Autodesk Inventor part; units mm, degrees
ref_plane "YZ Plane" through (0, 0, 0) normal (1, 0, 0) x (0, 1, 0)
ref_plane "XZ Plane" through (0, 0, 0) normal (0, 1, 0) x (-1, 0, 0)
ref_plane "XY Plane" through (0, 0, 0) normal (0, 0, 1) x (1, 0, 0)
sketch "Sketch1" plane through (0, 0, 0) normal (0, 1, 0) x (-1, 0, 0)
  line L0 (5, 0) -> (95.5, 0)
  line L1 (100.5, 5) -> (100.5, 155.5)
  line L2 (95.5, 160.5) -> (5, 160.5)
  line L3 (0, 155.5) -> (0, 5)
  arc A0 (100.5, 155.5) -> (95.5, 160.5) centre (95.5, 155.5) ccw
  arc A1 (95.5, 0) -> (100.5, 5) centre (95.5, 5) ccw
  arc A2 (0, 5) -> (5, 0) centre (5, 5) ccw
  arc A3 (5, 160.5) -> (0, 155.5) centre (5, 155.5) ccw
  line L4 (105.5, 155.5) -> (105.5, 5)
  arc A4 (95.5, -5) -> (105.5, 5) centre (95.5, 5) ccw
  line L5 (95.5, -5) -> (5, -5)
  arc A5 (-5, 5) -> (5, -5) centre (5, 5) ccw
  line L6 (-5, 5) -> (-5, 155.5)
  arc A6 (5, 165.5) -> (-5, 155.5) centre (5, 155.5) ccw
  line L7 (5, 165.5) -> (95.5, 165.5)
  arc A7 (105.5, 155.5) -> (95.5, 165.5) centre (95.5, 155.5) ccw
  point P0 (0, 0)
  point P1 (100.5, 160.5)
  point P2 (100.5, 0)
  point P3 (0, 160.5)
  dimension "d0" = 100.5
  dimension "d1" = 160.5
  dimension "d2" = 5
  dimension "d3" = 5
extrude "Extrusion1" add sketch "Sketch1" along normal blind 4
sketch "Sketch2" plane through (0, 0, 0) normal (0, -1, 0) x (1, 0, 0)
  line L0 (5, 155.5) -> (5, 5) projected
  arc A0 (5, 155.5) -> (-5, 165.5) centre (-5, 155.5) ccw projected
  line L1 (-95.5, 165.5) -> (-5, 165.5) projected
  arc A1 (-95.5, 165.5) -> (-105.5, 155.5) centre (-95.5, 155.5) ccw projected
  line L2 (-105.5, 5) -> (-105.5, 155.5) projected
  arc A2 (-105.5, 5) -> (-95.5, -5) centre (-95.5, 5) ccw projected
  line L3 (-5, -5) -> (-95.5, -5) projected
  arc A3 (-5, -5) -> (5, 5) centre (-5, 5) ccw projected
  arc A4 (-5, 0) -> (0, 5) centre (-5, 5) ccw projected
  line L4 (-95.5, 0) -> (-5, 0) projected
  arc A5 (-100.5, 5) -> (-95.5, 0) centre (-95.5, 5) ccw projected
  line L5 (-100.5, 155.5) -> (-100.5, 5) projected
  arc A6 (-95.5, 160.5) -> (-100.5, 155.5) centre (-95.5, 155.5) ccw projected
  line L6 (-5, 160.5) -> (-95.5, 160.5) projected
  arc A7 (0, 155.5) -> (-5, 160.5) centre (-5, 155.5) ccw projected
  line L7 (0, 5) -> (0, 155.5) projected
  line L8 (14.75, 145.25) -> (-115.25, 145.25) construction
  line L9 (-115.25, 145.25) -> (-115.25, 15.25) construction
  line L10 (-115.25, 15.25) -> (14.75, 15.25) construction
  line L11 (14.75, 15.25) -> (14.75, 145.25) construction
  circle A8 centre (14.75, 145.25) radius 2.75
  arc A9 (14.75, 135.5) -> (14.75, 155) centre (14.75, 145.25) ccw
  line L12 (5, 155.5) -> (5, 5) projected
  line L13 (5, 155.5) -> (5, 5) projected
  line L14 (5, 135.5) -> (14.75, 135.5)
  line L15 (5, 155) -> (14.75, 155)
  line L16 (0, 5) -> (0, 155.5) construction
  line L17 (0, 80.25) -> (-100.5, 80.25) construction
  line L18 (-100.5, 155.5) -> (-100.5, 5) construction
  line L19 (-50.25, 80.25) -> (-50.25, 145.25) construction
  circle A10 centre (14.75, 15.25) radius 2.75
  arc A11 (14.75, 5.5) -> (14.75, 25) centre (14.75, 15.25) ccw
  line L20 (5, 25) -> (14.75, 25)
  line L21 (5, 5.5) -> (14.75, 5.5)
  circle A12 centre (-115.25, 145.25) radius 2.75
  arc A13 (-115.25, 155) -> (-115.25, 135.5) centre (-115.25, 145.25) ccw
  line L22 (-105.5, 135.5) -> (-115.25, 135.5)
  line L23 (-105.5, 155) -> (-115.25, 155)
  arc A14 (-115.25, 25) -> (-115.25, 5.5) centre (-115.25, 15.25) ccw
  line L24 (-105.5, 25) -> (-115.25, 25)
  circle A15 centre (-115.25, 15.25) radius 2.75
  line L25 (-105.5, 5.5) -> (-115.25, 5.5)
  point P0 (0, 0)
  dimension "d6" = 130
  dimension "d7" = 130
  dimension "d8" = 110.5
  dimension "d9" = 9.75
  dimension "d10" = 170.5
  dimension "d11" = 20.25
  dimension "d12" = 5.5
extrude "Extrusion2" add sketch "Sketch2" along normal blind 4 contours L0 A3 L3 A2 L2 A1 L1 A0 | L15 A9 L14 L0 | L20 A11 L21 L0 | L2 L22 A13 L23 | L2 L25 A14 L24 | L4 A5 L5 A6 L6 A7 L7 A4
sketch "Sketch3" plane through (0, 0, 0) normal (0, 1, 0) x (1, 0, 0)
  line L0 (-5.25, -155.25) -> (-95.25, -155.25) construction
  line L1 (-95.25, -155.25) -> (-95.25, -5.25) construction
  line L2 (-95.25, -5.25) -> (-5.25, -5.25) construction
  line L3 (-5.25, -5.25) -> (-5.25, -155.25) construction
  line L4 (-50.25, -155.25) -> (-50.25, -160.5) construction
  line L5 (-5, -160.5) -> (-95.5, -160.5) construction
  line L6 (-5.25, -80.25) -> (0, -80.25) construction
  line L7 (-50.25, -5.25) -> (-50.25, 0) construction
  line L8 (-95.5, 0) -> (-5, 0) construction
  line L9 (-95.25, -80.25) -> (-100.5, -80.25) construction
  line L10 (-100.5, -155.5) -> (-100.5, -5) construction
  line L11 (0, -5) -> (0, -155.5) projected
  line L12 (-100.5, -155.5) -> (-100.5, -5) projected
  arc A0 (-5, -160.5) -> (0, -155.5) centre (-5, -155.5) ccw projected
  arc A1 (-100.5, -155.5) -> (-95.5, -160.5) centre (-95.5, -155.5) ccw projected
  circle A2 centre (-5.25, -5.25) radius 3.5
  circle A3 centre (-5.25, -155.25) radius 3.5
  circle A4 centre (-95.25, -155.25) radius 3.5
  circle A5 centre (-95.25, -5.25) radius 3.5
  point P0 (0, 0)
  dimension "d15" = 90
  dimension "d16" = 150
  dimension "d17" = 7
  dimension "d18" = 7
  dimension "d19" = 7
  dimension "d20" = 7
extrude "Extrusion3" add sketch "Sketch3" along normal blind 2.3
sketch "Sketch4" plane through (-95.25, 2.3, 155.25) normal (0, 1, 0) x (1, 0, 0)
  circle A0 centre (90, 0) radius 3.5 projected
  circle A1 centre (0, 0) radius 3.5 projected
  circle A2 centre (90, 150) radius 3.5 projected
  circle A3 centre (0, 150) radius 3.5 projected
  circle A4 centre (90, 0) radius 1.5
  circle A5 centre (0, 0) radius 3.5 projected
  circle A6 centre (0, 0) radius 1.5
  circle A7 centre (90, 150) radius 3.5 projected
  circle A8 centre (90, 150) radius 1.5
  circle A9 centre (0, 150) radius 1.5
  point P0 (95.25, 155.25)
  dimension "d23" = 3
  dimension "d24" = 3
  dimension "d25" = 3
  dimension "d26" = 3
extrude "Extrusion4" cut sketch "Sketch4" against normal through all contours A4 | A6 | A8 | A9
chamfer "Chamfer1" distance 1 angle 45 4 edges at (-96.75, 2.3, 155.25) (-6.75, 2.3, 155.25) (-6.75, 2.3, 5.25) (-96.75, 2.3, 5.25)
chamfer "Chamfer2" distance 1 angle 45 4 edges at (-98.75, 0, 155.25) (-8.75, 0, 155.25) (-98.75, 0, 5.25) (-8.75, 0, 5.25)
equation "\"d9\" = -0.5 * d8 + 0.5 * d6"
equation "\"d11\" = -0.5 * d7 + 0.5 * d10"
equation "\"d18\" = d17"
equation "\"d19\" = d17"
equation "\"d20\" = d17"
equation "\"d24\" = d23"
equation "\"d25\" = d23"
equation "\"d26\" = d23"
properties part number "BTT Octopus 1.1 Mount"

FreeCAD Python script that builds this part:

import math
import FreeCAD as App
import Part
import Sketcher
Q = App.Units.Quantity


def edges_at(feature, points):
    """Names of the edges that pass closest to the given points."""
    edges = feature.Shape.Edges
    near = lambda p: min(range(len(edges)), key=lambda i: edges[i].distToShape(Part.Vertex(*p))[0])
    return sorted({f"Edge{near(p) + 1}" for p in points})

doc = App.newDocument("Part")
params = doc.addObject("Spreadsheet::Sheet", "Params")
for row, (alias, value) in enumerate([
    ("sketch1_radius", "5 mm"),
    ("pad1_length", "4 mm"),
    ("sketch2_diameter", "5.5 mm"),
    ("sketch2_radius", "9.75 mm"),
    ("sketch2_height", "110.5 mm"),
    ("sketch2_radius2", "10 mm"),
    ("sketch2_width", "9.75 mm"),
    ("pad2_length", "4 mm"),
    ("sketch3_diameter", "7 mm"),
    ("pad3_length", "2.3 mm"),
    ("sketch4_diameter", "3 mm"),
    ("chamfer_size", "1 mm"),
    ("chamfer2_size", "1 mm"),
], start=1):
    params.set(f"A{row}", alias)
    params.set(f"B{row}", "=" + value)
    params.setAlias(f"B{row}", alias)

body = doc.addObject("PartDesign::Body", "Body")

# Sketch on XZ plane
sketch1 = body.newObject("Sketcher::SketchObject", "Sketch")
sketch1.AttachmentSupport = (doc.getObject("XZ_Plane"), [""])
sketch1.MapMode = "FlatFace"
sketch1.addGeometry(Part.LineSegment(App.Vector(-106, 5, 0), App.Vector(-106, 156, 0)), False)
sketch1.addGeometry(Part.ArcOfCircle(Part.Circle(App.Vector(-96, 156, 0), App.Vector(0, 0, 1), 10), math.radians(90), math.radians(180)), False)
sketch1.addGeometry(Part.LineSegment(App.Vector(-96, 166, 0), App.Vector(-5, 166, 0)), False)
sketch1.addGeometry(Part.ArcOfCircle(Part.Circle(App.Vector(-5, 156, 0), App.Vector(0, 0, 1), 10), math.radians(0), math.radians(90)), False)
sketch1.addGeometry(Part.LineSegment(App.Vector(5, 156, 0), App.Vector(5, 5, 0)), False)
sketch1.addGeometry(Part.ArcOfCircle(Part.Circle(App.Vector(-5, 5, 0), App.Vector(0, 0, 1), 10), math.radians(-90), math.radians(0)), False)
sketch1.addGeometry(Part.LineSegment(App.Vector(-5, -5, 0), App.Vector(-96, -5, 0)), False)
sketch1.addGeometry(Part.ArcOfCircle(Part.Circle(App.Vector(-96, 5, 0), App.Vector(0, 0, 1), 10), math.radians(180), math.radians(270)), False)
sketch1.addGeometry(Part.LineSegment(App.Vector(-96, 0, 0), App.Vector(-5, 0, 0)), False)
sketch1.addGeometry(Part.ArcOfCircle(Part.Circle(App.Vector(-5, 5, 0), App.Vector(0, 0, 1), 5), math.radians(-90), math.radians(0)), False)
sketch1.addGeometry(Part.LineSegment(App.Vector(0, 5, 0), App.Vector(0, 156, 0)), False)
sketch1.addGeometry(Part.ArcOfCircle(Part.Circle(App.Vector(-5, 156, 0), App.Vector(0, 0, 1), 5), math.radians(0), math.radians(90)), False)
sketch1.addGeometry(Part.LineSegment(App.Vector(-5, 160, 0), App.Vector(-96, 160, 0)), False)
sketch1.addGeometry(Part.ArcOfCircle(Part.Circle(App.Vector(-96, 156, 0), App.Vector(0, 0, 1), 5), math.radians(90), math.radians(180)), False)
sketch1.addGeometry(Part.LineSegment(App.Vector(-100, 156, 0), App.Vector(-100, 5, 0)), False)
sketch1.addGeometry(Part.ArcOfCircle(Part.Circle(App.Vector(-96, 5, 0), App.Vector(0, 0, 1), 5), math.radians(180), math.radians(270)), False)
sketch1.addConstraint(Sketcher.Constraint("Tangent", 0, 2, 1, 2))
sketch1.addConstraint(Sketcher.Constraint("Tangent", 1, 1, 2, 1))
sketch1.addConstraint(Sketcher.Constraint("Tangent", 2, 2, 3, 2))
sketch1.addConstraint(Sketcher.Constraint("Tangent", 3, 1, 4, 1))
sketch1.addConstraint(Sketcher.Constraint("Tangent", 4, 2, 5, 2))
sketch1.addConstraint(Sketcher.Constraint("Tangent", 5, 1, 6, 1))
sketch1.addConstraint(Sketcher.Constraint("Tangent", 6, 2, 7, 2))
sketch1.addConstraint(Sketcher.Constraint("Tangent", 7, 1, 0, 1))
sketch1.addConstraint(Sketcher.Constraint("Tangent", 8, 2, 9, 1))
sketch1.addConstraint(Sketcher.Constraint("Tangent", 9, 2, 10, 1))
sketch1.addConstraint(Sketcher.Constraint("Tangent", 10, 2, 11, 1))
sketch1.addConstraint(Sketcher.Constraint("Tangent", 11, 2, 12, 1))
sketch1.addConstraint(Sketcher.Constraint("Tangent", 12, 2, 13, 1))
sketch1.addConstraint(Sketcher.Constraint("Tangent", 13, 2, 14, 1))
sketch1.addConstraint(Sketcher.Constraint("Tangent", 14, 2, 15, 1))
sketch1.addConstraint(Sketcher.Constraint("Tangent", 15, 2, 8, 1))
sketch1.addConstraint(Sketcher.Constraint("Vertical", 0))
sketch1.addConstraint(Sketcher.Constraint("Horizontal", 2))
sketch1.addConstraint(Sketcher.Constraint("Vertical", 4))
sketch1.addConstraint(Sketcher.Constraint("Horizontal", 6))
sketch1.addConstraint(Sketcher.Constraint("Horizontal", 8))
sketch1.addConstraint(Sketcher.Constraint("Vertical", 10))
sketch1.addConstraint(Sketcher.Constraint("Horizontal", 12))
sketch1.addConstraint(Sketcher.Constraint("Vertical", 14))
sketch1.addConstraint(Sketcher.Constraint("Coincident", 9, 3, 5, 3))
sketch1.addConstraint(Sketcher.Constraint("Coincident", 11, 3, 3, 3))
sketch1.addConstraint(Sketcher.Constraint("Coincident", 13, 3, 1, 3))
sketch1.addConstraint(Sketcher.Constraint("Equal", 1, 3))
sketch1.addConstraint(Sketcher.Constraint("Equal", 3, 5))
sketch1.addConstraint(Sketcher.Constraint("Equal", 5, 7))
sketch1.addConstraint(Sketcher.Constraint("Equal", 13, 15))
sketch1.addConstraint(Sketcher.Constraint("Symmetric", 4, 2, 5, 1, -1, 1))
sketch1.addConstraint(Sketcher.Constraint("PointOnObject", 8, 2, -1))
sketch1.addConstraint(Sketcher.Constraint("Radius", 9, Q("5 mm")))
sketch1.addConstraint(Sketcher.Constraint("DistanceY", -1, 1, 11, 2, Q("160.5 mm")))
sketch1.addConstraint(Sketcher.Constraint("DistanceX", 13, 2, -1, 1, Q("100.5 mm")))
sketch1.setExpression("Constraints[33]", "Params.sketch1_radius")
pad1 = body.newObject("PartDesign::Pad", "Pad")
pad1.Profile = sketch1
pad1.setExpression("Length", "Params.pad1_length")
pad1.Reversed = True

# Sketch on XZ plane
sketch2 = body.newObject("Sketcher::SketchObject", "Sketch001")
sketch2.AttachmentSupport = (doc.getObject("XZ_Plane"), [""])
sketch2.MapMode = "FlatFace"
sketch2.addGeometry(Part.LineSegment(App.Vector(5, 155, 0), App.Vector(5, 155.5, 0)), False)
sketch2.addGeometry(Part.ArcOfCircle(Part.Circle(App.Vector(-5, 155.5, 0), App.Vector(0, 0, 1), 10), math.radians(0), math.radians(90)), False)
sketch2.addGeometry(Part.LineSegment(App.Vector(-5, 165.5, 0), App.Vector(-95.5, 165.5, 0)), False)
sketch2.addGeometry(Part.ArcOfCircle(Part.Circle(App.Vector(-95.5, 155.5, 0), App.Vector(0, 0, 1), 10), math.radians(90), math.radians(180)), False)
sketch2.addGeometry(Part.LineSegment(App.Vector(-105.5, 155.5, 0), App.Vector(-105.5, 155, 0)), False)
sketch2.addGeometry(Part.LineSegment(App.Vector(-105.5, 155, 0), App.Vector(-115.2, 155, 0)), False)
sketch2.addGeometry(Part.ArcOfCircle(Part.Circle(App.Vector(-115.2, 145.2, 0), App.Vector(0, 0, 1), 9.8), math.radians(90), math.radians(270)), False)
sketch2.addGeometry(Part.LineSegment(App.Vector(-115.2, 135.5, 0), App.Vector(-105.5, 135.5, 0)), False)
sketch2.addGeometry(Part.LineSegment(App.Vector(-105.5, 135.5, 0), App.Vector(-105.5, 25, 0)), False)
sketch2.addGeometry(Part.LineSegment(App.Vector(-105.5, 25, 0), App.Vector(-115.2, 25, 0)), False)
sketch2.addGeometry(Part.ArcOfCircle(Part.Circle(App.Vector(-115.2, 15.2, 0), App.Vector(0, 0, 1), 9.8), math.radians(90), math.radians(270)), False)
sketch2.addGeometry(Part.LineSegment(App.Vector(-115.2, 5.5, 0), App.Vector(-105.5, 5.5, 0)), False)
sketch2.addGeometry(Part.LineSegment(App.Vector(-105.5, 5.5, 0), App.Vector(-105.5, 5, 0)), False)
sketch2.addGeometry(Part.ArcOfCircle(Part.Circle(App.Vector(-95.5, 5, 0), App.Vector(0, 0, 1), 10), math.radians(180), math.radians(270)), False)
sketch2.addGeometry(Part.LineSegment(App.Vector(-95.5, -5, 0), App.Vector(-5, -5, 0)), False)
sketch2.addGeometry(Part.ArcOfCircle(Part.Circle(App.Vector(-5, 5, 0), App.Vector(0, 0, 1), 10), math.radians(-90), math.radians(0)), False)
sketch2.addGeometry(Part.LineSegment(App.Vector(5, 5, 0), App.Vector(5, 5.5, 0)), False)
sketch2.addGeometry(Part.LineSegment(App.Vector(5, 5.5, 0), App.Vector(14.8, 5.5, 0)), False)
sketch2.addGeometry(Part.ArcOfCircle(Part.Circle(App.Vector(14.8, 15.2, 0), App.Vector(0, 0, 1), 9.8), math.radians(-90), math.radians(90)), False)
sketch2.addGeometry(Part.LineSegment(App.Vector(14.8, 25, 0), App.Vector(5, 25, 0)), False)
sketch2.addGeometry(Part.LineSegment(App.Vector(5, 25, 0), App.Vector(5, 135.5, 0)), False)
sketch2.addGeometry(Part.LineSegment(App.Vector(5, 135.5, 0), App.Vector(14.8, 135.5, 0)), False)
sketch2.addGeometry(Part.ArcOfCircle(Part.Circle(App.Vector(14.8, 145.2, 0), App.Vector(0, 0, 1), 9.8), math.radians(-90), math.radians(90)), False)
sketch2.addGeometry(Part.LineSegment(App.Vector(14.8, 155, 0), App.Vector(5, 155, 0)), False)
sketch2.addGeometry(Part.Circle(App.Vector(14.8, 145.2, 0), App.Vector(0, 0, 1), 2.8), False)
sketch2.addGeometry(Part.Circle(App.Vector(14.8, 15.2, 0), App.Vector(0, 0, 1), 2.8), False)
sketch2.addGeometry(Part.Circle(App.Vector(-115.2, 15.2, 0), App.Vector(0, 0, 1), 2.8), False)
sketch2.addGeometry(Part.Circle(App.Vector(-115.2, 145.2, 0), App.Vector(0, 0, 1), 2.8), False)
sketch2.addConstraint(Sketcher.Constraint("Tangent", 0, 2, 1, 1))
sketch2.addConstraint(Sketcher.Constraint("Tangent", 1, 2, 2, 1))
sketch2.addConstraint(Sketcher.Constraint("Tangent", 2, 2, 3, 1))
sketch2.addConstraint(Sketcher.Constraint("Tangent", 3, 2, 4, 1))
sketch2.addConstraint(Sketcher.Constraint("Coincident", 4, 2, 5, 1))
sketch2.addConstraint(Sketcher.Constraint("Tangent", 5, 2, 6, 1))
sketch2.addConstraint(Sketcher.Constraint("Tangent", 6, 2, 7, 1))
sketch2.addConstraint(Sketcher.Constraint("Coincident", 7, 2, 8, 1))
sketch2.addConstraint(Sketcher.Constraint("Coincident", 8, 2, 9, 1))
sketch2.addConstraint(Sketcher.Constraint("Tangent", 9, 2, 10, 1))
sketch2.addConstraint(Sketcher.Constraint("Tangent", 10, 2, 11, 1))
sketch2.addConstraint(Sketcher.Constraint("Coincident", 11, 2, 12, 1))
sketch2.addConstraint(Sketcher.Constraint("Tangent", 12, 2, 13, 1))
sketch2.addConstraint(Sketcher.Constraint("Tangent", 13, 2, 14, 1))
sketch2.addConstraint(Sketcher.Constraint("Tangent", 14, 2, 15, 1))
sketch2.addConstraint(Sketcher.Constraint("Tangent", 15, 2, 16, 1))
sketch2.addConstraint(Sketcher.Constraint("Coincident", 16, 2, 17, 1))
sketch2.addConstraint(Sketcher.Constraint("Tangent", 17, 2, 18, 1))
sketch2.addConstraint(Sketcher.Constraint("Tangent", 18, 2, 19, 1))
sketch2.addConstraint(Sketcher.Constraint("Coincident", 19, 2, 20, 1))
sketch2.addConstraint(Sketcher.Constraint("Coincident", 20, 2, 21, 1))
sketch2.addConstraint(Sketcher.Constraint("Tangent", 21, 2, 22, 1))
sketch2.addConstraint(Sketcher.Constraint("Tangent", 22, 2, 23, 1))
sketch2.addConstraint(Sketcher.Constraint("Coincident", 23, 2, 0, 1))
sketch2.addConstraint(Sketcher.Constraint("Vertical", 0))
sketch2.addConstraint(Sketcher.Constraint("Horizontal", 2))
sketch2.addConstraint(Sketcher.Constraint("Vertical", 4))
sketch2.addConstraint(Sketcher.Constraint("Horizontal", 5))
sketch2.addConstraint(Sketcher.Constraint("Horizontal", 7))
sketch2.addConstraint(Sketcher.Constraint("Vertical", 8))
sketch2.addConstraint(Sketcher.Constraint("Horizontal", 9))
sketch2.addConstraint(Sketcher.Constraint("Horizontal", 11))
sketch2.addConstraint(Sketcher.Constraint("Vertical", 12))
sketch2.addConstraint(Sketcher.Constraint("Horizontal", 14))
sketch2.addConstraint(Sketcher.Constraint("Vertical", 16))
sketch2.addConstraint(Sketcher.Constraint("Horizontal", 17))
sketch2.addConstraint(Sketcher.Constraint("Horizontal", 19))
sketch2.addConstraint(Sketcher.Constraint("Vertical", 20))
sketch2.addConstraint(Sketcher.Constraint("Horizontal", 21))
sketch2.addConstraint(Sketcher.Constraint("Horizontal", 23))
sketch2.addConstraint(Sketcher.Constraint("Coincident", 24, 3, 22, 3))
sketch2.addConstraint(Sketcher.Constraint("Coincident", 25, 3, 18, 3))
sketch2.addConstraint(Sketcher.Constraint("Coincident", 26, 3, 10, 3))
sketch2.addConstraint(Sketcher.Constraint("Coincident", 27, 3, 6, 3))
sketch2.addConstraint(Sketcher.Constraint("Equal", 1, 3))
sketch2.addConstraint(Sketcher.Constraint("Equal", 6, 10))
sketch2.addConstraint(Sketcher.Constraint("Equal", 3, 13))
sketch2.addConstraint(Sketcher.Constraint("Equal", 13, 15))
sketch2.addConstraint(Sketcher.Constraint("Equal", 10, 18))
sketch2.addConstraint(Sketcher.Constraint("Equal", 18, 22))
sketch2.addConstraint(Sketcher.Constraint("Equal", 24, 25))
sketch2.addConstraint(Sketcher.Constraint("Equal", 25, 26))
sketch2.addConstraint(Sketcher.Constraint("Equal", 26, 27))
sketch2.addConstraint(Sketcher.Constraint("Symmetric", 14, 2, 15, 2, -1, 1))
sketch2.addConstraint(Sketcher.Constraint("Horizontal", 10, 3, 18, 3))
sketch2.addConstraint(Sketcher.Constraint("Horizontal", 6, 3, 22, 3))
sketch2.addConstraint(Sketcher.Constraint("Vertical", 6, 3, 10, 3))
sketch2.addConstraint(Sketcher.Constraint("Vertical", 3, 3, 13, 3))
sketch2.addConstraint(Sketcher.Constraint("Vertical", 1, 3, 15, 3))
sketch2.addConstraint(Sketcher.Constraint("Vertical", 18, 3, 22, 3))
sketch2.addConstraint(Sketcher.Constraint("Vertical", 4, 2, 7, 2))
sketch2.addConstraint(Sketcher.Constraint("Vertical", 16, 2, 19, 2))
sketch2.addConstraint(Sketcher.Constraint("Equal", 11, 17))
sketch2.addConstraint(Sketcher.Constraint("Equal", 4, 12))
sketch2.addConstraint(Sketcher.Constraint("Diameter", 24, Q("5.5 mm")))
sketch2.addConstraint(Sketcher.Constraint("Radius", 6, Q("9.75 mm")))
sketch2.addConstraint(Sketcher.Constraint("DistanceY", 8, 2, 8, 1, Q("110.5 mm")))
sketch2.addConstraint(Sketcher.Constraint("Radius", 1, Q("10 mm")))
sketch2.addConstraint(Sketcher.Constraint("DistanceX", 10, 3, 18, 3, Q("130 mm")))
sketch2.addConstraint(Sketcher.Constraint("DistanceX", 5, 2, 5, 1, Q("9.75 mm")))
sketch2.addConstraint(Sketcher.Constraint("DistanceY", -1, 1, 10, 2, Q("5.5 mm")))
sketch2.setExpression("Constraints[64]", "Params.sketch2_diameter")
sketch2.setExpression("Constraints[65]", "Params.sketch2_radius")
sketch2.setExpression("Constraints[66]", "Params.sketch2_height")
sketch2.setExpression("Constraints[67]", "Params.sketch2_radius2")
sketch2.setExpression("Constraints[69]", "Params.sketch2_width")
pad2 = body.newObject("PartDesign::Pad", "Pad001")
pad2.Profile = sketch2
pad2.setExpression("Length", "Params.pad2_length")

# Sketch on XZ plane
sketch3 = body.newObject("Sketcher::SketchObject", "Sketch002")
sketch3.AttachmentSupport = (doc.getObject("XZ_Plane"), [""])
sketch3.MapMode = "FlatFace"
sketch3.addGeometry(Part.Circle(App.Vector(-5.2, 5.2, 0), App.Vector(0, 0, 1), 3.5), False)
sketch3.addGeometry(Part.Circle(App.Vector(-5.2, 155.2, 0), App.Vector(0, 0, 1), 3.5), False)
sketch3.addGeometry(Part.Circle(App.Vector(-95.2, 155.2, 0), App.Vector(0, 0, 1), 3.5), False)
sketch3.addGeometry(Part.Circle(App.Vector(-95.2, 5.2, 0), App.Vector(0, 0, 1), 3.5), False)
sketch3.addConstraint(Sketcher.Constraint("Equal", 0, 1))
sketch3.addConstraint(Sketcher.Constraint("Equal", 1, 2))
sketch3.addConstraint(Sketcher.Constraint("Equal", 2, 3))
sketch3.addConstraint(Sketcher.Constraint("Horizontal", 1, 3, 2, 3))
sketch3.addConstraint(Sketcher.Constraint("Horizontal", 0, 3, 3, 3))
sketch3.addConstraint(Sketcher.Constraint("Vertical", 0, 3, 1, 3))
sketch3.addConstraint(Sketcher.Constraint("Vertical", 2, 3, 3, 3))
sketch3.addConstraint(Sketcher.Constraint("Diameter", 0, Q("7 mm")))
sketch3.addConstraint(Sketcher.Constraint("DistanceY", 0, 3, 1, 3, Q("150 mm")))
sketch3.addConstraint(Sketcher.Constraint("DistanceX", 2, 3, 1, 3, Q("90 mm")))
sketch3.addConstraint(Sketcher.Constraint("DistanceX", 0, 3, -1, 1, Q("5.25 mm")))
sketch3.addConstraint(Sketcher.Constraint("DistanceY", -1, 1, 0, 3, Q("5.25 mm")))
sketch3.setExpression("Constraints[7]", "Params.sketch3_diameter")
pad3 = body.newObject("PartDesign::Pad", "Pad002")
pad3.Profile = sketch3
pad3.setExpression("Length", "Params.pad3_length")
pad3.Reversed = True

# Sketch on XZ plane
sketch4 = body.newObject("Sketcher::SketchObject", "Sketch003")
sketch4.AttachmentSupport = (doc.getObject("XZ_Plane"), [""])
sketch4.MapMode = "FlatFace"
sketch4.AttachmentOffset = App.Placement(App.Vector(0, 0, -2.3), App.Rotation())
sketch4.addGeometry(Part.Circle(App.Vector(-5.2, 155.2, 0), App.Vector(0, 0, 1), 1.5), False)
sketch4.addGeometry(Part.Circle(App.Vector(-95.2, 155.2, 0), App.Vector(0, 0, 1), 1.5), False)
sketch4.addGeometry(Part.Circle(App.Vector(-5.2, 5.2, 0), App.Vector(0, 0, 1), 1.5), False)
sketch4.addGeometry(Part.Circle(App.Vector(-95.2, 5.2, 0), App.Vector(0, 0, 1), 1.5), False)
sketch4.addConstraint(Sketcher.Constraint("Equal", 0, 1))
sketch4.addConstraint(Sketcher.Constraint("Equal", 1, 2))
sketch4.addConstraint(Sketcher.Constraint("Equal", 2, 3))
sketch4.addConstraint(Sketcher.Constraint("Horizontal", 0, 3, 1, 3))
sketch4.addConstraint(Sketcher.Constraint("Horizontal", 2, 3, 3, 3))
sketch4.addConstraint(Sketcher.Constraint("Vertical", 0, 3, 2, 3))
sketch4.addConstraint(Sketcher.Constraint("Vertical", 1, 3, 3, 3))
sketch4.addConstraint(Sketcher.Constraint("Diameter", 0, Q("3 mm")))
sketch4.addConstraint(Sketcher.Constraint("DistanceX", 1, 3, 0, 3, Q("90 mm")))
sketch4.addConstraint(Sketcher.Constraint("DistanceY", 2, 3, 0, 3, Q("150 mm")))
sketch4.addConstraint(Sketcher.Constraint("DistanceX", 0, 3, -1, 1, Q("5.25 mm")))
sketch4.addConstraint(Sketcher.Constraint("DistanceY", -1, 1, 0, 3, Q("155.25 mm")))
sketch4.setExpression("Constraints[7]", "Params.sketch4_diameter")
pocket1 = body.newObject("PartDesign::Pocket", "Pocket")
pocket1.Profile = sketch4
pocket1.Type = "ThroughAll"
pocket1.Reversed = True
doc.recompute()

chamfer = body.newObject("PartDesign::Chamfer", "Chamfer")
chamfer.Base = (pocket1, edges_at(pocket1, [
    (-96.75, 2.3, 155.25),
    (-6.75, 2.3, 155.25),
    (-6.75, 2.3, 5.25),
    (-96.75, 2.3, 5.25),
]))
chamfer.setExpression("Size", "Params.chamfer_size")
doc.recompute()

chamfer2 = body.newObject("PartDesign::Chamfer", "Chamfer001")
chamfer2.Base = (chamfer, edges_at(chamfer, [
    (-98.75, 0, 155.25),
    (-8.75, 0, 155.25),
    (-98.75, 0, 5.25),
    (-8.75, 0, 5.25),
]))
chamfer2.setExpression("Size", "Params.chamfer2_size")

doc.recompute()
